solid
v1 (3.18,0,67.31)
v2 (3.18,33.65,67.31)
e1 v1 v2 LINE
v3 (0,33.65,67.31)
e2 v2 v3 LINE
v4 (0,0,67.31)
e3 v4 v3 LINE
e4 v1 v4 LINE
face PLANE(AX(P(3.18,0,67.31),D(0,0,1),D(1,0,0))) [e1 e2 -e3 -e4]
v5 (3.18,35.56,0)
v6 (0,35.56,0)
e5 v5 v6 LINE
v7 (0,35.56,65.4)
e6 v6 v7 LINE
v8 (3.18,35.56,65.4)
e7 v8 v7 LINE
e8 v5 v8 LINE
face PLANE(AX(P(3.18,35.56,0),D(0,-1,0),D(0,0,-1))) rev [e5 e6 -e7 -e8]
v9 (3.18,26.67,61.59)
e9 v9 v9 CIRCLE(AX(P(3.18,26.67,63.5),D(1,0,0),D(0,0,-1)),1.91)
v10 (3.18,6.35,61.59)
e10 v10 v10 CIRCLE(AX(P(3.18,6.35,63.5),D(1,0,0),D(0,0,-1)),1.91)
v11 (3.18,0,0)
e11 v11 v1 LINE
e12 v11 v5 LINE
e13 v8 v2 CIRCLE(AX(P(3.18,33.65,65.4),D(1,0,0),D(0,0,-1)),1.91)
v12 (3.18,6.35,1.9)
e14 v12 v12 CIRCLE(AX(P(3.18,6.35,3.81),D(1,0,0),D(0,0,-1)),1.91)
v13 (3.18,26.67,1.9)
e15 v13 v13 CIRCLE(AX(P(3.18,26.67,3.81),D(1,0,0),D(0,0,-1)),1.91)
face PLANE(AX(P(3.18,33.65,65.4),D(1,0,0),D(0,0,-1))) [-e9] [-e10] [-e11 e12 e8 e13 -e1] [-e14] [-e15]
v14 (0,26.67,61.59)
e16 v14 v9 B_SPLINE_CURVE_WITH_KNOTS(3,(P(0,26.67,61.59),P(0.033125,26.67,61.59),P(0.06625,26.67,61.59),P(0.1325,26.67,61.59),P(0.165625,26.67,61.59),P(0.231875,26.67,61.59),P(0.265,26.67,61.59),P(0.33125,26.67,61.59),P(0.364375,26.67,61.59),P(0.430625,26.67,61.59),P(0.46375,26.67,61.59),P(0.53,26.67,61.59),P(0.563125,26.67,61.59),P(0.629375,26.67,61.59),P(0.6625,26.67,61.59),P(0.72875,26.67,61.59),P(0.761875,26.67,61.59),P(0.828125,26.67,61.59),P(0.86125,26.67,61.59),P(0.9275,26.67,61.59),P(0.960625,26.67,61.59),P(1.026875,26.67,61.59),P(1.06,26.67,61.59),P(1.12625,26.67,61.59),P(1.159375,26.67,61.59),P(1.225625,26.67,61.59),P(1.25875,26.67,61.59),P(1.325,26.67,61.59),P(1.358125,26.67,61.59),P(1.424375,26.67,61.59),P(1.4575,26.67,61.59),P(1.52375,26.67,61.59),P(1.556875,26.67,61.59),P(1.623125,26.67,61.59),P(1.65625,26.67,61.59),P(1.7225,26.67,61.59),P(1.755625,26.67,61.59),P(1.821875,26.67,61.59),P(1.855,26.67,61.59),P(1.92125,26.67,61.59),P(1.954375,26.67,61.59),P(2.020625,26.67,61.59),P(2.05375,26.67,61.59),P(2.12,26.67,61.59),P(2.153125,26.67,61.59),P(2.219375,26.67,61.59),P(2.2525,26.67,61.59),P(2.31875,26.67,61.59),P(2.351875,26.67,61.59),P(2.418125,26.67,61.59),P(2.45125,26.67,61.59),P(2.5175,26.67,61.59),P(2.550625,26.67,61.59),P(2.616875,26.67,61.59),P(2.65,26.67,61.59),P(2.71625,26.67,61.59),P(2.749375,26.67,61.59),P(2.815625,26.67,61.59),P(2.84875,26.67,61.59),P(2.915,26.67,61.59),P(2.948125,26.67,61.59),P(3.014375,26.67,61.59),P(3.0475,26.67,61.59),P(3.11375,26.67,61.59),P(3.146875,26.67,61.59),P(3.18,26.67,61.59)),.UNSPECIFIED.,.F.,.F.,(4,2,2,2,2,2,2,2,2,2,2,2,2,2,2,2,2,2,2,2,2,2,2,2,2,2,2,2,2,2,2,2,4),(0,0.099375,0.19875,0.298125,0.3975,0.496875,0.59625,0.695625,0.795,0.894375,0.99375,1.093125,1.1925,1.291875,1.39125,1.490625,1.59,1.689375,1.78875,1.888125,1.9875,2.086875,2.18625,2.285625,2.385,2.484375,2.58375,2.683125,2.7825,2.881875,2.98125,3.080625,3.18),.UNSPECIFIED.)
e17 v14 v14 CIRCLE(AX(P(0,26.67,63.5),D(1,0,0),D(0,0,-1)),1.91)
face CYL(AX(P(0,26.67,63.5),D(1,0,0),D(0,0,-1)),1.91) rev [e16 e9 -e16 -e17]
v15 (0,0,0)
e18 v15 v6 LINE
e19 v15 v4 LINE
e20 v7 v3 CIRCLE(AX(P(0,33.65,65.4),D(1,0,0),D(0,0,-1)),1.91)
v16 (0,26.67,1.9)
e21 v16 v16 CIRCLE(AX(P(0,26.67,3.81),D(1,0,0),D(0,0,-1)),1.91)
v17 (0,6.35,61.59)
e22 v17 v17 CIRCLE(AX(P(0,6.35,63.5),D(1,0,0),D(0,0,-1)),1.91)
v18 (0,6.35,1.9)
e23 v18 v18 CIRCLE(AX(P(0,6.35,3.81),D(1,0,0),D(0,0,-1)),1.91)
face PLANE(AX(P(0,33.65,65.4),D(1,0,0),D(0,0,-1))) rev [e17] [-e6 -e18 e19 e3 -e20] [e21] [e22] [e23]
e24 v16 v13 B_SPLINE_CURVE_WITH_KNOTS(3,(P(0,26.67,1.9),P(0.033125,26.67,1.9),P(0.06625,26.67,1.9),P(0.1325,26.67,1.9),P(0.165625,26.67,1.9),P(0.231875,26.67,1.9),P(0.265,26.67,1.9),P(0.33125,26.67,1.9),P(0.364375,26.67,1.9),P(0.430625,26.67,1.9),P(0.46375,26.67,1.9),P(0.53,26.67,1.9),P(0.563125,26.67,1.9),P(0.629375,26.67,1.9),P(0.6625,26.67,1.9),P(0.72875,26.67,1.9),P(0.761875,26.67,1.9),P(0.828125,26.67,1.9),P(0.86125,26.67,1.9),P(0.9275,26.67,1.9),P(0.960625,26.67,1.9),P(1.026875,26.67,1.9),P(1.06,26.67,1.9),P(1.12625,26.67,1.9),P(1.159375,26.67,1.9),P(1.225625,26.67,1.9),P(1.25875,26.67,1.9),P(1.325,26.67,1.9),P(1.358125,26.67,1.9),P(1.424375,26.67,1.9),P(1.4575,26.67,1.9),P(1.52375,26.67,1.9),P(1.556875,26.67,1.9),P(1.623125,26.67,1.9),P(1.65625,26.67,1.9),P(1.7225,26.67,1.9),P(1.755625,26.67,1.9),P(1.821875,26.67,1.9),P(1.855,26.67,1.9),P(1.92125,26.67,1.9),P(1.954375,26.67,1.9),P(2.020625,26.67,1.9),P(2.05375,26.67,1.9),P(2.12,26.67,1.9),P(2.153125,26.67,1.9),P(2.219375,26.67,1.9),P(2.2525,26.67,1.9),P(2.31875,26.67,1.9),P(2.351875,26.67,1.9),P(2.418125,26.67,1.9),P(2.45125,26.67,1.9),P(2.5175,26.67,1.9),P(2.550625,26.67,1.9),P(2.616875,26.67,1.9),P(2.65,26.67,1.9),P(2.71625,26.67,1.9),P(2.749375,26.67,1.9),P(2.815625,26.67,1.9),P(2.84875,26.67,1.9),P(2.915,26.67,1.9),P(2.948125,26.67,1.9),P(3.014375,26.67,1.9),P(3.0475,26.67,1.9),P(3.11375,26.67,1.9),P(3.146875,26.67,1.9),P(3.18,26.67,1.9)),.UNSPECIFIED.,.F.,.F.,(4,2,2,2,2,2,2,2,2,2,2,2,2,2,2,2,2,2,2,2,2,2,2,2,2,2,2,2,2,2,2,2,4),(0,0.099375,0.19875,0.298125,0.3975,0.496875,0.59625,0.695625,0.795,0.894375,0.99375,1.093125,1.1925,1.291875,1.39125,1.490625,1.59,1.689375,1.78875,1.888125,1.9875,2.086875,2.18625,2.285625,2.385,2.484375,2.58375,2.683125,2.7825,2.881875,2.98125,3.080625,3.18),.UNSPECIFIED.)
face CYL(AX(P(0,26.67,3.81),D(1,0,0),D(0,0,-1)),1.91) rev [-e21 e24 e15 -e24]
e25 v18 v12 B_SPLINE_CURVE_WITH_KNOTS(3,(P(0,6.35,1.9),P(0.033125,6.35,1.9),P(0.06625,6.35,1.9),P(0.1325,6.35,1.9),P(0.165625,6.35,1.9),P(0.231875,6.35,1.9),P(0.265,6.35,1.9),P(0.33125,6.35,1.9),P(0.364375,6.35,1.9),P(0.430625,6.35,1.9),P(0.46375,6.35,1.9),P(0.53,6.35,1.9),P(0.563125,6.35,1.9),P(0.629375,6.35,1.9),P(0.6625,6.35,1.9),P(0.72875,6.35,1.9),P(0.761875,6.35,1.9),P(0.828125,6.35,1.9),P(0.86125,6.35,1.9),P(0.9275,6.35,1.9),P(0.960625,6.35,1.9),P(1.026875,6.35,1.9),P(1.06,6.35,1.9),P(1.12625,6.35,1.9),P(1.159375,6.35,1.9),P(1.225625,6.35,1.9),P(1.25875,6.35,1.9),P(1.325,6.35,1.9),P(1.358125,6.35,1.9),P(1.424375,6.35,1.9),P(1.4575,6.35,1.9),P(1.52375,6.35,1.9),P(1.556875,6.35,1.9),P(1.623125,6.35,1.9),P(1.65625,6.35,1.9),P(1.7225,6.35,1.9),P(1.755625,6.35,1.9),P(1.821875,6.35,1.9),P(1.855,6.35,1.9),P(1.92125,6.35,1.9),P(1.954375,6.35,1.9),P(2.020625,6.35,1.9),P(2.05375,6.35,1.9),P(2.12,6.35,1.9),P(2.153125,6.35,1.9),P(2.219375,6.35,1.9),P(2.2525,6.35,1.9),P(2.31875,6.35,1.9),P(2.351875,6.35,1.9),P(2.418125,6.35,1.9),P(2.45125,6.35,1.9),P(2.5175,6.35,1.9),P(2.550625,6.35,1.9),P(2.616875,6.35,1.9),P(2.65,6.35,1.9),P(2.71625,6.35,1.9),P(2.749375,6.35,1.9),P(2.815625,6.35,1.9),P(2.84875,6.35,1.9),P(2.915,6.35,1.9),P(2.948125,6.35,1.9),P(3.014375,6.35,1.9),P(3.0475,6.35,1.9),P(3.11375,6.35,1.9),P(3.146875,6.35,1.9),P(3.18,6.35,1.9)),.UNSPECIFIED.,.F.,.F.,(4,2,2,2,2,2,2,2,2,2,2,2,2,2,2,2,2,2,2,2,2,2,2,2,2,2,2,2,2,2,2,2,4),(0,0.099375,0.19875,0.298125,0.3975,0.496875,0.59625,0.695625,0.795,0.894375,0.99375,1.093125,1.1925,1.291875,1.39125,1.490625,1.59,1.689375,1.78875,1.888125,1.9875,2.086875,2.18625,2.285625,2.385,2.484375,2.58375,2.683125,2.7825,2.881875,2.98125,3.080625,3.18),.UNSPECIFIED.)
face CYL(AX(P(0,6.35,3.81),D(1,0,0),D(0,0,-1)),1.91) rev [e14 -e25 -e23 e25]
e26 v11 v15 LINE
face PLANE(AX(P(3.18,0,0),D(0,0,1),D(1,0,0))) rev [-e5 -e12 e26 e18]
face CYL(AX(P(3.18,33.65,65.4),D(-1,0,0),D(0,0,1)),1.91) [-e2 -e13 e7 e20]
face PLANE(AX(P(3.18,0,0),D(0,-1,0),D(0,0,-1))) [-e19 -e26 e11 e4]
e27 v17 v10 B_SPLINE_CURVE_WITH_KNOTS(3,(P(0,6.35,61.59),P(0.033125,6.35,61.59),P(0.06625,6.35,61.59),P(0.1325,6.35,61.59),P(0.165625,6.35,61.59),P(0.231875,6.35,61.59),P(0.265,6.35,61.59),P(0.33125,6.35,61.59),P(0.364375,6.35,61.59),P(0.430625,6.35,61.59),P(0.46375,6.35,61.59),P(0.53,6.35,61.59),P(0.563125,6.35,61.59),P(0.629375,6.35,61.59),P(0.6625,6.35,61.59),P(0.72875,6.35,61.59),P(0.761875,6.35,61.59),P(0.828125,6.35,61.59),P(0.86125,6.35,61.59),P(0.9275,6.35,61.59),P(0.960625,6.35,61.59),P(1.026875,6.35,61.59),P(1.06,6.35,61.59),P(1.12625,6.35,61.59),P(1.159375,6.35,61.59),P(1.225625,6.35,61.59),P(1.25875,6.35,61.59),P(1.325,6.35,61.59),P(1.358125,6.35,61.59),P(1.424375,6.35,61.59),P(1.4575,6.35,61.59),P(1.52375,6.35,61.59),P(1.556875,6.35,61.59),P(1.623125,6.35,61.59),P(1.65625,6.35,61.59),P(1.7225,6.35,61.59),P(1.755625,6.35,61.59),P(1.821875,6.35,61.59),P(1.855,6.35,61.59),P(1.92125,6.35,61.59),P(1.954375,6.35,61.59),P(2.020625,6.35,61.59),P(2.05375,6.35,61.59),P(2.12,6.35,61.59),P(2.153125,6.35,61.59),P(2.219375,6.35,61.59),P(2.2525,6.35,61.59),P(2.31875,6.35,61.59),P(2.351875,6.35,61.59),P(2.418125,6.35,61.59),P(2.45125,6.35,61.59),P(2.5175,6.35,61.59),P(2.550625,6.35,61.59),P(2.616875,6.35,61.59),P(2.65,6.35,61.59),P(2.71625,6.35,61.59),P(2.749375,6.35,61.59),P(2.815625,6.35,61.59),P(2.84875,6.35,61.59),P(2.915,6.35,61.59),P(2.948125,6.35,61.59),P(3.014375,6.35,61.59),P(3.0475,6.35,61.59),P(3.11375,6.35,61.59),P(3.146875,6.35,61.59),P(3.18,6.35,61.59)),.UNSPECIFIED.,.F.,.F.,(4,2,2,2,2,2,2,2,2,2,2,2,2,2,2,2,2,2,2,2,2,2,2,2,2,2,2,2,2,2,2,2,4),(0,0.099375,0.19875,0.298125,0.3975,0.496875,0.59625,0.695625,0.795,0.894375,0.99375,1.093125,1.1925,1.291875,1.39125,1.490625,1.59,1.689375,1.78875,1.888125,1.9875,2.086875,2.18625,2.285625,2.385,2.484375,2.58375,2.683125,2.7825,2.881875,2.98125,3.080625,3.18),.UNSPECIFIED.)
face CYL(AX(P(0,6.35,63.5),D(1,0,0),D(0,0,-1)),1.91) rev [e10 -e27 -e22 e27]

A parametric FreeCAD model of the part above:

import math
import FreeCAD as App
import Part
import Sketcher

V = App.Vector
Q = App.Units.Quantity

doc = App.newDocument("Part")
params = doc.addObject("Spreadsheet::Sheet", "Params")
for row, (alias, value) in enumerate([
    ("sketch1_width", "1.4 in"),
    ("sketch1_height", "2.65 in"),
    ("pad1_length", "3.18 mm"),
], start=1):
    params.set(f"A{row}", alias)
    params.set(f"B{row}", "=" + value)
    params.setAlias(f"B{row}", alias)

body = doc.addObject("PartDesign::Body", "Body")

sketch1 = body.newObject("Sketcher::SketchObject", "Sketch")
sketch1.AttachmentSupport = (doc.getObject("YZ_Plane"), [""])
sketch1.MapMode = "FlatFace"
sketch1.addGeometry(Part.LineSegment(V(0, 67.31, 0), V(0, 0, 0)), False)
sketch1.addGeometry(Part.LineSegment(V(0, 0, 0), V(35.56, 0, 0)), False)
sketch1.addGeometry(Part.LineSegment(V(35.56, 0, 0), V(35.56, 65.4, 0)), False)
sketch1.addGeometry(Part.ArcOfCircle(Part.Circle(V(33.65, 65.4, 0), V(0, 0, 1), 1.91), math.radians(0), math.radians(90)), False)
sketch1.addGeometry(Part.LineSegment(V(33.65, 67.31, 0), V(0, 67.31, 0)), False)
sketch1.addConstraint(Sketcher.Constraint("Coincident", 0, 2, 1, 1))
sketch1.addConstraint(Sketcher.Constraint("Coincident", 1, 2, 2, 1))
sketch1.addConstraint(Sketcher.Constraint("Tangent", 2, 2, 3, 1))
sketch1.addConstraint(Sketcher.Constraint("Tangent", 3, 2, 4, 1))
sketch1.addConstraint(Sketcher.Constraint("Coincident", 4, 2, 0, 1))
sketch1.addConstraint(Sketcher.Constraint("Vertical", 0))
sketch1.addConstraint(Sketcher.Constraint("Horizontal", 1))
sketch1.addConstraint(Sketcher.Constraint("Vertical", 2))
sketch1.addConstraint(Sketcher.Constraint("Horizontal", 4))
sketch1.addConstraint(Sketcher.Constraint("Coincident", 0, 2, -1, 1))
sketch1.addConstraint(Sketcher.Constraint("DistanceX", 1, 1, 1, 2, Q("1.4 in")))
sketch1.addConstraint(Sketcher.Constraint("DistanceY", 0, 2, 0, 1, Q("2.65 in")))
sketch1.addConstraint(Sketcher.Constraint("Radius", 3, 1.91))
sketch1.setExpression("Constraints[10]", "Params.sketch1_width")
sketch1.setExpression("Constraints[11]", "Params.sketch1_height")
pad1 = body.newObject("PartDesign::Pad", "Pad")
pad1.Profile = sketch1
pad1.setExpression("Length", "Params.pad1_length")

sketch2 = body.newObject("Sketcher::SketchObject", "Sketch001")
sketch2.AttachmentSupport = (doc.getObject("YZ_Plane"), [""])
sketch2.MapMode = "FlatFace"
sketch2.AttachmentOffset = App.Placement(V(0, 0, 3.18), App.Rotation())
sketch2.addGeometry(Part.Circle(V(26.67, 63.5, 0), V(0, 0, 1), 1.91), False)
sketch2.addGeometry(Part.Circle(V(6.35, 63.5, 0), V(0, 0, 1), 1.91), False)
sketch2.addGeometry(Part.Circle(V(6.35, 3.81, 0), V(0, 0, 1), 1.91), False)
sketch2.addGeometry(Part.Circle(V(26.67, 3.81, 0), V(0, 0, 1), 1.91), False)
sketch2.addConstraint(Sketcher.Constraint("Equal", 0, 1))
sketch2.addConstraint(Sketcher.Constraint("Equal", 1, 2))
sketch2.addConstraint(Sketcher.Constraint("Equal", 2, 3))
sketch2.addConstraint(Sketcher.Constraint("Horizontal", 0, 3, 1, 3))
sketch2.addConstraint(Sketcher.Constraint("Horizontal", 2, 3, 3, 3))
sketch2.addConstraint(Sketcher.Constraint("Vertical", 1, 3, 2, 3))
sketch2.addConstraint(Sketcher.Constraint("Vertical", 0, 3, 3, 3))
sketch2.addConstraint(Sketcher.Constraint("DistanceY", -1, 1, 0, 3, Q("2.5 in")))
sketch2.addConstraint(Sketcher.Constraint("DistanceX", 1, 3, 0, 3, Q("0.8 in")))
sketch2.addConstraint(Sketcher.Constraint("Diameter", 0, 3.82))
sketch2.addConstraint(Sketcher.Constraint("DistanceX", -1, 1, 0, 3, Q("1.05 in")))
sketch2.addConstraint(Sketcher.Constraint("DistanceY", -1, 1, 2, 3, Q("0.15 in")))
pocket1 = body.newObject("PartDesign::Pocket", "Pocket")
pocket1.Profile = sketch2
pocket1.Type = "ThroughAll"

doc.recompute()
